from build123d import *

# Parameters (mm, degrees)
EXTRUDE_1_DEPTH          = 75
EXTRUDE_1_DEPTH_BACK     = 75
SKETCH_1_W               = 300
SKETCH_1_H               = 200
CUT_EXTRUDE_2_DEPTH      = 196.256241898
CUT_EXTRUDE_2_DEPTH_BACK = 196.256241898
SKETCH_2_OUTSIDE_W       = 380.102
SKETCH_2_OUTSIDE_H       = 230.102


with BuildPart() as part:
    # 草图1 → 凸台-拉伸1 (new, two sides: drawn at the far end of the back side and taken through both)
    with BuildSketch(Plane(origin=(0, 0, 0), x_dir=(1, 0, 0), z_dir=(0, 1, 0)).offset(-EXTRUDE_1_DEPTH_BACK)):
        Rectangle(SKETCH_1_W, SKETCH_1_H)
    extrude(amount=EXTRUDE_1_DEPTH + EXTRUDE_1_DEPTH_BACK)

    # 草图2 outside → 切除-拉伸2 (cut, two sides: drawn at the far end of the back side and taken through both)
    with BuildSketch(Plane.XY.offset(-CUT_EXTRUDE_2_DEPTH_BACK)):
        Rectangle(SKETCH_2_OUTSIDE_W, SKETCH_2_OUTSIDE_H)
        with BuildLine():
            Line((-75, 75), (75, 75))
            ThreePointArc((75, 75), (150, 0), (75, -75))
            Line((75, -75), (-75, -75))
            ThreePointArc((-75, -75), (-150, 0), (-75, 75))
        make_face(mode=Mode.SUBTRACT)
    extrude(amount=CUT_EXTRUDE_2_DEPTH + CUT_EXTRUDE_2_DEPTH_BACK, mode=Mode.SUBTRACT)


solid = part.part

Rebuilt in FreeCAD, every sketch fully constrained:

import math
import FreeCAD as App
import Part
import Sketcher

V = App.Vector
Q = App.Units.Quantity


def add_polygon(sketch, points):
    """Adds a closed chain of lines whose ends are joined by coincident constraints."""
    first, n = sketch.GeometryCount, len(points)
    for a, b in zip(points, points[1:] + points[:1]):
        sketch.addGeometry(Part.LineSegment(App.Vector(*a, 0), App.Vector(*b, 0)), False)
    for i in range(n):
        sketch.addConstraint(Sketcher.Constraint("Coincident", first + i, 2, first + (i + 1) % n, 1))

doc = App.newDocument("Part")
params = doc.addObject("Spreadsheet::Sheet", "Params")
for row, (alias, value) in enumerate([
    ("sketch1_width", "300 mm"),
    ("sketch1_height", "200 mm"),
    ("pad1_length", "75 mm"),
    ("pad1_length2", "75 mm"),
    ("sketch2_radius", "75 mm"),
    ("sketch2_width", "150 mm"),
], start=1):
    params.set(f"A{row}", alias)
    params.set(f"B{row}", "=" + value)
    params.setAlias(f"B{row}", alias)

body = doc.addObject("PartDesign::Body", "Body")

sketch1 = body.newObject("Sketcher::SketchObject", "Sketch")
sketch1.AttachmentSupport = (doc.getObject("XZ_Plane"), [""])
sketch1.MapMode = "FlatFace"
add_polygon(sketch1, [(-150, -100), (-150, 100), (150, 100), (150, -100)])
sketch1.addConstraint(Sketcher.Constraint("Vertical", 0))
sketch1.addConstraint(Sketcher.Constraint("Horizontal", 1))
sketch1.addConstraint(Sketcher.Constraint("Vertical", 2))
sketch1.addConstraint(Sketcher.Constraint("Horizontal", 3))
sketch1.addConstraint(Sketcher.Constraint("Symmetric", 0, 2, 2, 2, -1, 1))
sketch1.addConstraint(Sketcher.Constraint("DistanceX", 1, 1, 1, 2, Q("300 mm")))
sketch1.addConstraint(Sketcher.Constraint("DistanceY", 0, 1, 0, 2, Q("200 mm")))
sketch1.setExpression("Constraints[9]", "Params.sketch1_width")
sketch1.setExpression("Constraints[10]", "Params.sketch1_height")
pad1 = body.newObject("PartDesign::Pad", "Pad")
pad1.Profile = sketch1
pad1.Type = "TwoLengths"
pad1.setExpression("Length", "Params.pad1_length")
pad1.setExpression("Length2", "Params.pad1_length2")
pad1.Reversed = True

sketch2 = body.newObject("Sketcher::SketchObject", "Sketch001")
sketch2.AttachmentSupport = (doc.getObject("XY_Plane"), [""])
sketch2.MapMode = "FlatFace"
add_polygon(sketch2, [(-190, 115), (-190, -115), (190, -115), (190, 115)])
sketch2.addGeometry(Part.ArcOfCircle(Part.Circle(V(-75, 0, 0), V(0, 0, 1), 75), math.radians(90), math.radians(270)), False)
sketch2.addGeometry(Part.LineSegment(V(-75, 75, 0), V(75, 75, 0)), False)
sketch2.addGeometry(Part.ArcOfCircle(Part.Circle(V(75, 0, 0), V(0, 0, 1), 75), math.radians(-90), math.radians(90)), False)
sketch2.addGeometry(Part.LineSegment(V(75, -75, 0), V(-75, -75, 0)), False)
sketch2.addConstraint(Sketcher.Constraint("Tangent", 4, 1, 5, 1))
sketch2.addConstraint(Sketcher.Constraint("Tangent", 5, 2, 6, 2))
sketch2.addConstraint(Sketcher.Constraint("Tangent", 6, 1, 7, 1))
sketch2.addConstraint(Sketcher.Constraint("Tangent", 7, 2, 4, 2))
sketch2.addConstraint(Sketcher.Constraint("Vertical", 0))
sketch2.addConstraint(Sketcher.Constraint("Horizontal", 1))
sketch2.addConstraint(Sketcher.Constraint("Vertical", 2))
sketch2.addConstraint(Sketcher.Constraint("Horizontal", 3))
sketch2.addConstraint(Sketcher.Constraint("Horizontal", 5))
sketch2.addConstraint(Sketcher.Constraint("Horizontal", 7))
sketch2.addConstraint(Sketcher.Constraint("Symmetric", 4, 3, 6, 3, -1, 1))
sketch2.addConstraint(Sketcher.Constraint("Symmetric", 0, 2, 2, 2, -1, 1))
sketch2.addConstraint(Sketcher.Constraint("Radius", 4, Q("75 mm")))
sketch2.addConstraint(Sketcher.Constraint("DistanceX", 5, 1, 5, 2, Q("150 mm")))
sketch2.addConstraint(Sketcher.Constraint("DistanceX", 1, 1, 1, 2, Q("380.102 mm")))
sketch2.addConstraint(Sketcher.Constraint("DistanceY", 0, 2, 0, 1, Q("230.102 mm")))
sketch2.setExpression("Constraints[16]", "Params.sketch2_radius")
sketch2.setExpression("Constraints[17]", "Params.sketch2_width")
pocket1 = body.newObject("PartDesign::Pocket", "Pocket")
pocket1.Profile = sketch2
pocket1.Type = "ThroughAll"
pocket1.Midplane = True

doc.recompute()
